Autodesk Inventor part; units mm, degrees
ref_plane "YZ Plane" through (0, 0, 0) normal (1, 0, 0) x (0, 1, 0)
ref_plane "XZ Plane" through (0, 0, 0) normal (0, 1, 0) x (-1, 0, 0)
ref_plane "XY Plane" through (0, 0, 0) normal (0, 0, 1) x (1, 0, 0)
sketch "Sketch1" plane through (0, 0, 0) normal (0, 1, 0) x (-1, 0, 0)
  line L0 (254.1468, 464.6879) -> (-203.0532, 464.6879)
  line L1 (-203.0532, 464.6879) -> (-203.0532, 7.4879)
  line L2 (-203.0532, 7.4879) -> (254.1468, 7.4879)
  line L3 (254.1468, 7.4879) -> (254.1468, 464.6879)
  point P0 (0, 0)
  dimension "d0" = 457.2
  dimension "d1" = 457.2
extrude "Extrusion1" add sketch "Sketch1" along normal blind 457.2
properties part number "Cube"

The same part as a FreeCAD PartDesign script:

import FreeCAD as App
import Part
import Sketcher
from FreeCAD import Vector
Q = App.Units.Quantity


def add_polygon(sketch, points):
    """Adds a closed chain of lines whose ends are joined by coincident constraints."""
    first, n = sketch.GeometryCount, len(points)
    for a, b in zip(points, points[1:] + points[:1]):
        sketch.addGeometry(Part.LineSegment(App.Vector(*a, 0), App.Vector(*b, 0)), False)
    for i in range(n):
        sketch.addConstraint(Sketcher.Constraint("Coincident", first + i, 2, first + (i + 1) % n, 1))

doc = App.newDocument("Part")
body = doc.addObject("PartDesign::Body", "Body")

# Sketch on XZ plane
sketch1 = body.newObject("Sketcher::SketchObject", "Sketch")
sketch1.AttachmentSupport = (doc.getObject("XZ_Plane"), [""])
sketch1.MapMode = "FlatFace"
add_polygon(sketch1, [(-254.1468, 7.4879), (-254.1468, 464.6879), (203.0532, 464.6879), (203.0532, 7.4879)])  # lines 0-3
sketch1.addConstraint([
    Sketcher.Constraint("Vertical", 0),
    Sketcher.Constraint("Horizontal", 1),
    Sketcher.Constraint("Vertical", 2),
    Sketcher.Constraint("Horizontal", 3),
    Sketcher.Constraint("Equal", 3, 0),
    Sketcher.Constraint("DistanceX", 1, 1, 1, 2, Q("18 in")),
    Sketcher.Constraint("DistanceY", -1, 1, 0, 2, Q("18.2948 in")),
    Sketcher.Constraint("DistanceX", 0, 2, -1, 1, Q("254.1468 mm")),
])
pad1 = body.newObject("PartDesign::Pad", "Pad")
pad1.Profile = sketch1
pad1.Length = Q("18 in")
pad1.Reversed = True

doc.recompute()
